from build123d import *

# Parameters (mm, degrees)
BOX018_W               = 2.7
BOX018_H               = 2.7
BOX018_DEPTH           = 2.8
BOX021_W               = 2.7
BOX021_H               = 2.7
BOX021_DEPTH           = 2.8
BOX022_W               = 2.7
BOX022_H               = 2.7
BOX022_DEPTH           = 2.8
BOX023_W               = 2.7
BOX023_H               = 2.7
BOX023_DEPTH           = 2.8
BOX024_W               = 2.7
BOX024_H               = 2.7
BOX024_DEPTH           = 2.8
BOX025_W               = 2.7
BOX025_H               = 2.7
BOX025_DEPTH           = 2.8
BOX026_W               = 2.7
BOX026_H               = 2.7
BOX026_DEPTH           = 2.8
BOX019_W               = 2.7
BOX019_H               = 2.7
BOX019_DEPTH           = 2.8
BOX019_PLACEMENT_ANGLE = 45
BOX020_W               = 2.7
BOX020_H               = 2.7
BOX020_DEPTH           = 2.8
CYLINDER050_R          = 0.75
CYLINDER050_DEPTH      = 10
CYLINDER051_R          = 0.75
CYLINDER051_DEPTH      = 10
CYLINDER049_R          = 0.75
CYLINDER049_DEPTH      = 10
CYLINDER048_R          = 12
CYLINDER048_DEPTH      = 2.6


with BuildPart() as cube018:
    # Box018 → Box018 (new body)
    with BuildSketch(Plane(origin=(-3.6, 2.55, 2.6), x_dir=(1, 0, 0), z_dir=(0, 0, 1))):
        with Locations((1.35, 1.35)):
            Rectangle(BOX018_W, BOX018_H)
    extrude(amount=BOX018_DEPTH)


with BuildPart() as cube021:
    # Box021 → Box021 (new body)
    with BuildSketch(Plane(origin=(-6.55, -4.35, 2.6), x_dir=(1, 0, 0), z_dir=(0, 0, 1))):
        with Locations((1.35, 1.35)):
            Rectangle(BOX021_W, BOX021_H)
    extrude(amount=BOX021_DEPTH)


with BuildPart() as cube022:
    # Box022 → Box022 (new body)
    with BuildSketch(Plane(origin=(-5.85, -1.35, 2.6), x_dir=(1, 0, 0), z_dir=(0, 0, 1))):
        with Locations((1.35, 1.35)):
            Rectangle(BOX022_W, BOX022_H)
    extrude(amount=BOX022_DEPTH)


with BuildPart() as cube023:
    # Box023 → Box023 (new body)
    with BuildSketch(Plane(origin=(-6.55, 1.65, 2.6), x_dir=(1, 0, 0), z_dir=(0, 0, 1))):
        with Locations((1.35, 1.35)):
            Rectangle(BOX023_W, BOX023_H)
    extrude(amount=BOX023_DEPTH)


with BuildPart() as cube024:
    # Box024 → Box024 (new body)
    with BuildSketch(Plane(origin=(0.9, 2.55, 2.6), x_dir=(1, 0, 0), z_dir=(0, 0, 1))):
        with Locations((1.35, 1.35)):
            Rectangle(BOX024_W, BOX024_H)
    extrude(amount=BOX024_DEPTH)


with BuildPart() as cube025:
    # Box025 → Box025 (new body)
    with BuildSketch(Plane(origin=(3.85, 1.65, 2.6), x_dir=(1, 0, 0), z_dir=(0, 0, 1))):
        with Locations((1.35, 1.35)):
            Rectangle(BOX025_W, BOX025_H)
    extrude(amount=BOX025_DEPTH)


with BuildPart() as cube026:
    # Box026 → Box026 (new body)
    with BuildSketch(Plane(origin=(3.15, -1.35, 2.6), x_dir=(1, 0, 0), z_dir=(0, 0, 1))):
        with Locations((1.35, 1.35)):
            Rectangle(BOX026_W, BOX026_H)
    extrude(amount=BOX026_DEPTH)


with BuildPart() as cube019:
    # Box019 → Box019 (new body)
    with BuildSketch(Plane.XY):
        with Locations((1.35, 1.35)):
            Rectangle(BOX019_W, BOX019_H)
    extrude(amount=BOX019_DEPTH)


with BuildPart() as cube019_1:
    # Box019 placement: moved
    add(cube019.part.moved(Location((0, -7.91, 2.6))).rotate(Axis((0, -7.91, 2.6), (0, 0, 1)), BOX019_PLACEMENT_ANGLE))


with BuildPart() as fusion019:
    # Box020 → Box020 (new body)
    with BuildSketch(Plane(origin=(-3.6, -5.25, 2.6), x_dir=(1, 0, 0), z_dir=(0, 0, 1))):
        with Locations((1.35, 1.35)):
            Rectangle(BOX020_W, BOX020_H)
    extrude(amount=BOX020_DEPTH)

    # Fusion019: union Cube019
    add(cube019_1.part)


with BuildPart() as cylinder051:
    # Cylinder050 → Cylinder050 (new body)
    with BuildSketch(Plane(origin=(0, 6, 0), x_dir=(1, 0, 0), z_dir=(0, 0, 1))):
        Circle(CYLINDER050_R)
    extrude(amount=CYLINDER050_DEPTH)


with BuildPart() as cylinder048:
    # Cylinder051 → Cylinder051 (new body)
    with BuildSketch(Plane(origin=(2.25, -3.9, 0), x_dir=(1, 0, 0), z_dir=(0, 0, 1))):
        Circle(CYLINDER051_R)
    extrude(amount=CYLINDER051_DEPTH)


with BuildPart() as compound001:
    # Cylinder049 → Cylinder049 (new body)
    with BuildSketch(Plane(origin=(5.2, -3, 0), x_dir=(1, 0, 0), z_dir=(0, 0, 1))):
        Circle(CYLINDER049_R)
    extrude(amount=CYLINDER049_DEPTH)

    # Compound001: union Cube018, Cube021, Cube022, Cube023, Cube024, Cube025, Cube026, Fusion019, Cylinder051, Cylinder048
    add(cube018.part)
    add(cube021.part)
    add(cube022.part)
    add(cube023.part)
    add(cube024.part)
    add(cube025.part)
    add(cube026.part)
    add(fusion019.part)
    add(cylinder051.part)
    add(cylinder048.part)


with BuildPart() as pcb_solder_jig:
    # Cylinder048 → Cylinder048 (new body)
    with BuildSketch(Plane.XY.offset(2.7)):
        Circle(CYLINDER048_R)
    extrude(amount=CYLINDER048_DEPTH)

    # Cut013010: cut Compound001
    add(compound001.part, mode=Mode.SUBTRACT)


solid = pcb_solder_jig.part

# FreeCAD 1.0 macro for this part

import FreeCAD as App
import Part
import Sketcher


def add_polygon(sketch, points):
    """Adds a closed chain of lines whose ends are joined by coincident constraints."""
    first, n = sketch.GeometryCount, len(points)
    for a, b in zip(points, points[1:] + points[:1]):
        sketch.addGeometry(Part.LineSegment(App.Vector(*a, 0), App.Vector(*b, 0)), False)
    for i in range(n):
        sketch.addConstraint(Sketcher.Constraint("Coincident", first + i, 2, first + (i + 1) % n, 1))

doc = App.newDocument("Part")
params = doc.addObject("Spreadsheet::Sheet", "Params")
for row, (alias, value) in enumerate([
    ("sketch1_width", "2.7 mm"),
    ("pad1_length", "2.8 mm"),
    ("sketch2_width", "2.7 mm"),
    ("pad2_length", "2.8 mm"),
    ("sketch3_width", "2.7 mm"),
    ("pad3_length", "2.8 mm"),
    ("sketch4_width", "2.7 mm"),
    ("pad4_length", "2.8 mm"),
    ("sketch5_width", "2.7 mm"),
    ("pad5_length", "2.8 mm"),
    ("sketch6_width", "2.7 mm"),
    ("pad6_length", "2.8 mm"),
    ("sketch7_width", "2.7 mm"),
    ("pad7_length", "2.8 mm"),
    ("sketch8_width", "2.7 mm"),
    ("pad8_length", "2.8 mm"),
    ("sketch9_width", "2.7 mm"),
    ("pad9_length", "2.8 mm"),
    ("sketch10_diameter", "1.5 mm"),
    ("pad10_length", "10 mm"),
    ("sketch11_diameter", "1.5 mm"),
    ("pad11_length", "10 mm"),
    ("sketch12_diameter", "1.5 mm"),
    ("pad12_length", "10 mm"),
    ("sketch13_diameter", "24 mm"),
    ("pad13_length", "2.6 mm"),
], start=1):
    params.set(f"A{row}", alias)
    params.set(f"B{row}", "=" + value)
    params.setAlias(f"B{row}", alias)

body = doc.addObject("PartDesign::Body", "Body")

sketch1 = body.newObject("Sketcher::SketchObject", "Sketch")
sketch1.AttachmentSupport = (doc.getObject("XY_Plane"), [""])
sketch1.MapMode = "FlatFace"
sketch1.AttachmentOffset = App.Placement(App.Vector(0, 0, 2.6), App.Rotation())
add_polygon(sketch1, [(-3.6, 5.25), (-3.6, 2.55), (-0.9, 2.55), (-0.9, 5.25)])
sketch1.addConstraint([
    Sketcher.Constraint("Vertical", 0),
    Sketcher.Constraint("Horizontal", 1),
    Sketcher.Constraint("Vertical", 2),
    Sketcher.Constraint("Horizontal", 3),
    Sketcher.Constraint("Equal", 3, 0),
    Sketcher.Constraint("DistanceX", 1, 1, 1, 2, 2.7),
    Sketcher.Constraint("DistanceX", 0, 2, -1, 1, 3.6),
    Sketcher.Constraint("DistanceY", -1, 1, 0, 2, 2.55),
])
sketch1.setExpression("Constraints[9]", "Params.sketch1_width")
pad1 = body.newObject("PartDesign::Pad", "Pad")
pad1.Profile = sketch1
pad1.setExpression("Length", "Params.pad1_length")
body2 = doc.addObject("PartDesign::Body", "Body001")

sketch2 = body2.newObject("Sketcher::SketchObject", "Sketch001")
sketch2.AttachmentSupport = (doc.getObject("XY_Plane001"), [""])
sketch2.MapMode = "FlatFace"
sketch2.AttachmentOffset = App.Placement(App.Vector(0, 0, 2.6), App.Rotation())
add_polygon(sketch2, [(-6.55, -1.65), (-6.55, -4.35), (-3.85, -4.35), (-3.85, -1.65)])
sketch2.addConstraint([
    Sketcher.Constraint("Vertical", 0),
    Sketcher.Constraint("Horizontal", 1),
    Sketcher.Constraint("Vertical", 2),
    Sketcher.Constraint("Horizontal", 3),
    Sketcher.Constraint("Equal", 3, 0),
    Sketcher.Constraint("DistanceX", 1, 1, 1, 2, 2.7),
    Sketcher.Constraint("DistanceX", 0, 2, -1, 1, 6.55),
    Sketcher.Constraint("DistanceY", 0, 2, -1, 1, 4.35),
])
sketch2.setExpression("Constraints[9]", "Params.sketch2_width")
pad2 = body2.newObject("PartDesign::Pad", "Pad001")
pad2.Profile = sketch2
pad2.setExpression("Length", "Params.pad2_length")
body3 = doc.addObject("PartDesign::Body", "Body002")

sketch3 = body3.newObject("Sketcher::SketchObject", "Sketch002")
sketch3.AttachmentSupport = (doc.getObject("XY_Plane002"), [""])
sketch3.MapMode = "FlatFace"
sketch3.AttachmentOffset = App.Placement(App.Vector(0, 0, 2.6), App.Rotation())
add_polygon(sketch3, [(-5.85, 1.35), (-5.85, -1.35), (-3.15, -1.35), (-3.15, 1.35)])
sketch3.addConstraint([
    Sketcher.Constraint("Vertical", 0),
    Sketcher.Constraint("Horizontal", 1),
    Sketcher.Constraint("Vertical", 2),
    Sketcher.Constraint("Horizontal", 3),
    Sketcher.Constraint("Equal", 3, 0),
    Sketcher.Constraint("DistanceX", 1, 1, 1, 2, 2.7),
    Sketcher.Constraint("DistanceX", 0, 2, -1, 1, 5.85),
    Sketcher.Constraint("DistanceY", 0, 2, -1, 1, 1.35),
])
sketch3.setExpression("Constraints[9]", "Params.sketch3_width")
pad3 = body3.newObject("PartDesign::Pad", "Pad002")
pad3.Profile = sketch3
pad3.setExpression("Length", "Params.pad3_length")
body4 = doc.addObject("PartDesign::Body", "Body003")

sketch4 = body4.newObject("Sketcher::SketchObject", "Sketch003")
sketch4.AttachmentSupport = (doc.getObject("XY_Plane003"), [""])
sketch4.MapMode = "FlatFace"
sketch4.AttachmentOffset = App.Placement(App.Vector(0, 0, 2.6), App.Rotation())
add_polygon(sketch4, [(-6.55, 4.35), (-6.55, 1.65), (-3.85, 1.65), (-3.85, 4.35)])
sketch4.addConstraint([
    Sketcher.Constraint("Vertical", 0),
    Sketcher.Constraint("Horizontal", 1),
    Sketcher.Constraint("Vertical", 2),
    Sketcher.Constraint("Horizontal", 3),
    Sketcher.Constraint("Equal", 3, 0),
    Sketcher.Constraint("DistanceX", 1, 1, 1, 2, 2.7),
    Sketcher.Constraint("DistanceX", 0, 2, -1, 1, 6.55),
    Sketcher.Constraint("DistanceY", -1, 1, 0, 2, 1.65),
])
sketch4.setExpression("Constraints[9]", "Params.sketch4_width")
pad4 = body4.newObject("PartDesign::Pad", "Pad003")
pad4.Profile = sketch4
pad4.setExpression("Length", "Params.pad4_length")
body5 = doc.addObject("PartDesign::Body", "Body004")

sketch5 = body5.newObject("Sketcher::SketchObject", "Sketch004")
sketch5.AttachmentSupport = (doc.getObject("XY_Plane004"), [""])
sketch5.MapMode = "FlatFace"
sketch5.AttachmentOffset = App.Placement(App.Vector(0, 0, 2.6), App.Rotation())
add_polygon(sketch5, [(0.9, 5.25), (0.9, 2.55), (3.6, 2.55), (3.6, 5.25)])
sketch5.addConstraint([
    Sketcher.Constraint("Vertical", 0),
    Sketcher.Constraint("Horizontal", 1),
    Sketcher.Constraint("Vertical", 2),
    Sketcher.Constraint("Horizontal", 3),
    Sketcher.Constraint("Equal", 3, 0),
    Sketcher.Constraint("DistanceX", 1, 1, 1, 2, 2.7),
    Sketcher.Constraint("DistanceX", -1, 1, 0, 2, 0.9),
    Sketcher.Constraint("DistanceY", -1, 1, 0, 2, 2.55),
])
sketch5.setExpression("Constraints[9]", "Params.sketch5_width")
pad5 = body5.newObject("PartDesign::Pad", "Pad004")
pad5.Profile = sketch5
pad5.setExpression("Length", "Params.pad5_length")
body6 = doc.addObject("PartDesign::Body", "Body005")

sketch6 = body6.newObject("Sketcher::SketchObject", "Sketch005")
sketch6.AttachmentSupport = (doc.getObject("XY_Plane005"), [""])
sketch6.MapMode = "FlatFace"
sketch6.AttachmentOffset = App.Placement(App.Vector(0, 0, 2.6), App.Rotation())
add_polygon(sketch6, [(3.85, 4.35), (3.85, 1.65), (6.55, 1.65), (6.55, 4.35)])
sketch6.addConstraint([
    Sketcher.Constraint("Vertical", 0),
    Sketcher.Constraint("Horizontal", 1),
    Sketcher.Constraint("Vertical", 2),
    Sketcher.Constraint("Horizontal", 3),
    Sketcher.Constraint("Equal", 3, 0),
    Sketcher.Constraint("DistanceX", 1, 1, 1, 2, 2.7),
    Sketcher.Constraint("DistanceX", -1, 1, 0, 2, 3.85),
    Sketcher.Constraint("DistanceY", -1, 1, 0, 2, 1.65),
])
sketch6.setExpression("Constraints[9]", "Params.sketch6_width")
pad6 = body6.newObject("PartDesign::Pad", "Pad005")
pad6.Profile = sketch6
pad6.setExpression("Length", "Params.pad6_length")
body7 = doc.addObject("PartDesign::Body", "Body006")

sketch7 = body7.newObject("Sketcher::SketchObject", "Sketch006")
sketch7.AttachmentSupport = (doc.getObject("XY_Plane006"), [""])
sketch7.MapMode = "FlatFace"
sketch7.AttachmentOffset = App.Placement(App.Vector(0, 0, 2.6), App.Rotation())
add_polygon(sketch7, [(3.15, 1.35), (3.15, -1.35), (5.85, -1.35), (5.85, 1.35)])
sketch7.addConstraint([
    Sketcher.Constraint("Vertical", 0),
    Sketcher.Constraint("Horizontal", 1),
    Sketcher.Constraint("Vertical", 2),
    Sketcher.Constraint("Horizontal", 3),
    Sketcher.Constraint("Equal", 3, 0),
    Sketcher.Constraint("DistanceX", 1, 1, 1, 2, 2.7),
    Sketcher.Constraint("DistanceX", -1, 1, 0, 2, 3.15),
    Sketcher.Constraint("DistanceY", 0, 2, -1, 1, 1.35),
])
sketch7.setExpression("Constraints[9]", "Params.sketch7_width")
pad7 = body7.newObject("PartDesign::Pad", "Pad006")
pad7.Profile = sketch7
pad7.setExpression("Length", "Params.pad7_length")
body8 = doc.addObject("PartDesign::Body", "Body007")

sketch8 = body8.newObject("Sketcher::SketchObject", "Sketch007")
sketch8.AttachmentSupport = (doc.getObject("XY_Plane007"), [""])
sketch8.MapMode = "FlatFace"
add_polygon(sketch8, [(0, 2.7), (0, 0), (2.7, 0), (2.7, 2.7)])
sketch8.addConstraint([
    Sketcher.Constraint("Vertical", 0),
    Sketcher.Constraint("Horizontal", 1),
    Sketcher.Constraint("Vertical", 2),
    Sketcher.Constraint("Horizontal", 3),
    Sketcher.Constraint("Coincident", 0, 2, -1, 1),
    Sketcher.Constraint("Equal", 3, 0),
    Sketcher.Constraint("DistanceX", 1, 1, 1, 2, 2.7),
])
sketch8.setExpression("Constraints[10]", "Params.sketch8_width")
pad8 = body8.newObject("PartDesign::Pad", "Pad007")
pad8.Profile = sketch8
pad8.setExpression("Length", "Params.pad8_length")
body9 = doc.addObject("PartDesign::Body", "Body008")
doc.recompute()

body8.Placement = App.Placement(App.Vector(0, -7.91, 2.6), App.Rotation(App.Vector(0, 0, 1), 45))
boolean = body9.newObject("PartDesign::Boolean", "Boolean")
boolean.Type = "Fuse"
boolean.addObjects([body8])
body10 = doc.addObject("PartDesign::Body", "Body009")

sketch9 = body10.newObject("Sketcher::SketchObject", "Sketch008")
sketch9.AttachmentSupport = (doc.getObject("XY_Plane009"), [""])
sketch9.MapMode = "FlatFace"
sketch9.AttachmentOffset = App.Placement(App.Vector(0, 0, 2.6), App.Rotation())
add_polygon(sketch9, [(-3.6, -2.55), (-3.6, -5.25), (-0.9, -5.25), (-0.9, -2.55)])
sketch9.addConstraint([
    Sketcher.Constraint("Vertical", 0),
    Sketcher.Constraint("Horizontal", 1),
    Sketcher.Constraint("Vertical", 2),
    Sketcher.Constraint("Horizontal", 3),
    Sketcher.Constraint("Equal", 3, 0),
    Sketcher.Constraint("DistanceX", 1, 1, 1, 2, 2.7),
    Sketcher.Constraint("DistanceX", 0, 2, -1, 1, 3.6),
    Sketcher.Constraint("DistanceY", 0, 2, -1, 1, 5.25),
])
sketch9.setExpression("Constraints[9]", "Params.sketch9_width")
pad9 = body10.newObject("PartDesign::Pad", "Pad008")
pad9.Profile = sketch9
pad9.setExpression("Length", "Params.pad9_length")
doc.recompute()

boolean2 = body10.newObject("PartDesign::Boolean", "Boolean001")
boolean2.Type = "Fuse"
boolean2.addObjects([body9])
body11 = doc.addObject("PartDesign::Body", "Body010")

sketch10 = body11.newObject("Sketcher::SketchObject", "Sketch009")
sketch10.AttachmentSupport = (doc.getObject("XY_Plane010"), [""])
sketch10.MapMode = "FlatFace"
sketch10.addGeometry(Part.Circle(App.Vector(0, 6, 0), App.Vector(0, 0, 1), 0.75), False)
sketch10.addConstraint([
    Sketcher.Constraint("PointOnObject", 0, 3, -2),
    Sketcher.Constraint("Diameter", 0, 1.5),
    Sketcher.Constraint("DistanceY", -1, 1, 0, 3, 6.0),
])
sketch10.setExpression("Constraints[1]", "Params.sketch10_diameter")
pad10 = body11.newObject("PartDesign::Pad", "Pad009")
pad10.Profile = sketch10
pad10.setExpression("Length", "Params.pad10_length")
body12 = doc.addObject("PartDesign::Body", "Body011")

sketch11 = body12.newObject("Sketcher::SketchObject", "Sketch010")
sketch11.AttachmentSupport = (doc.getObject("XY_Plane011"), [""])
sketch11.MapMode = "FlatFace"
sketch11.addGeometry(Part.Circle(App.Vector(2.25, -3.9, 0), App.Vector(0, 0, 1), 0.75), False)
sketch11.addConstraint([
    Sketcher.Constraint("Diameter", 0, 1.5),
    Sketcher.Constraint("DistanceY", 0, 3, -1, 1, 3.9),
    Sketcher.Constraint("DistanceX", -1, 1, 0, 3, 2.25),
])
sketch11.setExpression("Constraints[0]", "Params.sketch11_diameter")
pad11 = body12.newObject("PartDesign::Pad", "Pad010")
pad11.Profile = sketch11
pad11.setExpression("Length", "Params.pad11_length")
body13 = doc.addObject("PartDesign::Body", "Body012")
body13.AllowCompound = True

sketch12 = body13.newObject("Sketcher::SketchObject", "Sketch011")
sketch12.AttachmentSupport = (doc.getObject("XY_Plane012"), [""])
sketch12.MapMode = "FlatFace"
sketch12.addGeometry(Part.Circle(App.Vector(5.2, -3, 0), App.Vector(0, 0, 1), 0.75), False)
sketch12.addConstraint([
    Sketcher.Constraint("Diameter", 0, 1.5),
    Sketcher.Constraint("DistanceY", 0, 3, -1, 1, 3.0),
    Sketcher.Constraint("DistanceX", -1, 1, 0, 3, 5.2),
])
sketch12.setExpression("Constraints[0]", "Params.sketch12_diameter")
pad12 = body13.newObject("PartDesign::Pad", "Pad011")
pad12.Profile = sketch12
pad12.setExpression("Length", "Params.pad12_length")
doc.recompute()

boolean3 = body13.newObject("PartDesign::Boolean", "Boolean002")
boolean3.Type = "Fuse"
boolean3.addObjects([body])
doc.recompute()

boolean4 = body13.newObject("PartDesign::Boolean", "Boolean003")
boolean4.Type = "Fuse"
boolean4.addObjects([body2])
doc.recompute()

boolean5 = body13.newObject("PartDesign::Boolean", "Boolean004")
boolean5.Type = "Fuse"
boolean5.addObjects([body3])
doc.recompute()

boolean6 = body13.newObject("PartDesign::Boolean", "Boolean005")
boolean6.Type = "Fuse"
boolean6.addObjects([body4])
doc.recompute()

boolean7 = body13.newObject("PartDesign::Boolean", "Boolean006")
boolean7.Type = "Fuse"
boolean7.addObjects([body5])
doc.recompute()

boolean8 = body13.newObject("PartDesign::Boolean", "Boolean007")
boolean8.Type = "Fuse"
boolean8.addObjects([body6])
doc.recompute()

boolean9 = body13.newObject("PartDesign::Boolean", "Boolean008")
boolean9.Type = "Fuse"
boolean9.addObjects([body7])
doc.recompute()

boolean10 = body13.newObject("PartDesign::Boolean", "Boolean009")
boolean10.Type = "Fuse"
boolean10.addObjects([body10])
doc.recompute()

boolean11 = body13.newObject("PartDesign::Boolean", "Boolean010")
boolean11.Type = "Fuse"
boolean11.addObjects([body11])
doc.recompute()

boolean12 = body13.newObject("PartDesign::Boolean", "Boolean011")
boolean12.Type = "Fuse"
boolean12.addObjects([body12])
body14 = doc.addObject("PartDesign::Body", "Body013")

sketch13 = body14.newObject("Sketcher::SketchObject", "Sketch012")
sketch13.AttachmentSupport = (doc.getObject("XY_Plane013"), [""])
sketch13.MapMode = "FlatFace"
sketch13.AttachmentOffset = App.Placement(App.Vector(0, 0, 2.7), App.Rotation())
sketch13.addGeometry(Part.Circle(App.Vector(0, 0, 0), App.Vector(0, 0, 1), 12), False)
sketch13.addConstraint([
    Sketcher.Constraint("Coincident", 0, 3, -1, 1),
    Sketcher.Constraint("Diameter", 0, 24.0),
])
sketch13.setExpression("Constraints[1]", "Params.sketch13_diameter")
pad13 = body14.newObject("PartDesign::Pad", "Pad012")
pad13.Profile = sketch13
pad13.setExpression("Length", "Params.pad13_length")
doc.recompute()

boolean13 = body14.newObject("PartDesign::Boolean", "Boolean012")
boolean13.Type = "Cut"
boolean13.addObjects([body13])

doc.recompute()
